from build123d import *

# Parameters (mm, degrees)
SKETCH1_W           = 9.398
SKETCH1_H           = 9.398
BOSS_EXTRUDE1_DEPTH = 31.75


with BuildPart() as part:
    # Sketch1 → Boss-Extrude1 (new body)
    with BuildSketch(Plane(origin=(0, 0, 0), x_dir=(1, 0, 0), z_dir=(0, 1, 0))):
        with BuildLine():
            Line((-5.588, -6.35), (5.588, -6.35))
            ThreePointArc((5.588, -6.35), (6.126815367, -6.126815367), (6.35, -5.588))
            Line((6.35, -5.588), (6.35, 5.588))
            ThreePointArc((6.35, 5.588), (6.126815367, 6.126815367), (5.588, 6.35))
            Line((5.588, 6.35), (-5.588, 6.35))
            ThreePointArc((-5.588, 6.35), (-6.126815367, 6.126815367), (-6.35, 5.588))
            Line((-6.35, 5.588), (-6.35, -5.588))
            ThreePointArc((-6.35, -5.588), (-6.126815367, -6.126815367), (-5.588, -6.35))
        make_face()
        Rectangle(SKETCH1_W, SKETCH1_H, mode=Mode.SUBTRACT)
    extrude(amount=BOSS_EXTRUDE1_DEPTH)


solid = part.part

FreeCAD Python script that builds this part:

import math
import FreeCAD as App
import Part
import Sketcher
Q = App.Units.Quantity

doc = App.newDocument("Part")
body = doc.addObject("PartDesign::Body", "Body")

# Sketch on XZ plane
sketch1 = body.newObject("Sketcher::SketchObject", "Sketch")
sketch1.AttachmentSupport = (doc.getObject("XZ_Plane"), [""])
sketch1.MapMode = "FlatFace"
sketch1.addGeometry([
    Part.LineSegment(App.Vector(-5.6, 6.3, 0), App.Vector(5.6, 6.3, 0)),  # 0
    Part.ArcOfCircle(Part.Circle(App.Vector(5.6, 5.6, 0), App.Vector(0, 0, 1), 0.8), math.radians(0), math.radians(90)),  # 1
    Part.LineSegment(App.Vector(6.3, 5.6, 0), App.Vector(6.3, -5.6, 0)),  # 2
    Part.ArcOfCircle(Part.Circle(App.Vector(5.6, -5.6, 0), App.Vector(0, 0, 1), 0.8), math.radians(-90), math.radians(0)),  # 3
    Part.LineSegment(App.Vector(5.6, -6.3, 0), App.Vector(-5.6, -6.3, 0)),  # 4
    Part.ArcOfCircle(Part.Circle(App.Vector(-5.6, -5.6, 0), App.Vector(0, 0, 1), 0.8), math.radians(-180), math.radians(-90)),  # 5
    Part.LineSegment(App.Vector(-6.3, -5.6, 0), App.Vector(-6.3, 5.6, 0)),  # 6
    Part.ArcOfCircle(Part.Circle(App.Vector(-5.6, 5.6, 0), App.Vector(0, 0, 1), 0.8), math.radians(90), math.radians(180)),  # 7
    Part.LineSegment(App.Vector(4.7, 4.7, 0), App.Vector(-4.7, 4.7, 0)),  # 8
    Part.LineSegment(App.Vector(-4.7, 4.7, 0), App.Vector(-4.7, -4.7, 0)),  # 9
    Part.LineSegment(App.Vector(-4.7, -4.7, 0), App.Vector(4.7, -4.7, 0)),  # 10
    Part.LineSegment(App.Vector(4.7, -4.7, 0), App.Vector(4.7, 4.7, 0)),  # 11
], False)
sketch1.addConstraint([
    Sketcher.Constraint("Tangent", 0, 2, 1, 2),
    Sketcher.Constraint("Tangent", 1, 1, 2, 1),
    Sketcher.Constraint("Tangent", 2, 2, 3, 2),
    Sketcher.Constraint("Tangent", 3, 1, 4, 1),
    Sketcher.Constraint("Tangent", 4, 2, 5, 2),
    Sketcher.Constraint("Tangent", 5, 1, 6, 1),
    Sketcher.Constraint("Tangent", 6, 2, 7, 2),
    Sketcher.Constraint("Tangent", 7, 1, 0, 1),
    Sketcher.Constraint("Coincident", 8, 2, 9, 1),
    Sketcher.Constraint("Coincident", 9, 2, 10, 1),
    Sketcher.Constraint("Coincident", 10, 2, 11, 1),
    Sketcher.Constraint("Coincident", 11, 2, 8, 1),
    Sketcher.Constraint("Horizontal", 0),
    Sketcher.Constraint("Vertical", 2),
    Sketcher.Constraint("Horizontal", 4),
    Sketcher.Constraint("Vertical", 6),
    Sketcher.Constraint("Horizontal", 8),
    Sketcher.Constraint("Vertical", 9),
    Sketcher.Constraint("Horizontal", 10),
    Sketcher.Constraint("Vertical", 11),
    Sketcher.Constraint("Equal", 1, 3),
    Sketcher.Constraint("Equal", 3, 5),
    Sketcher.Constraint("Equal", 5, 7),
    Sketcher.Constraint("Symmetric", 1, 3, 5, 3, -1, 1),
    Sketcher.Constraint("Symmetric", 8, 2, 10, 2, -1, 1),
    Sketcher.Constraint("Equal", 4, 2),
    Sketcher.Constraint("Equal", 10, 9),
    Sketcher.Constraint("Radius", 1, Q("0.03 in")),
    Sketcher.Constraint("DistanceX", 0, 1, 0, 2, Q("0.44 in")),
    Sketcher.Constraint("DistanceX", 8, 2, 8, 1, Q("0.37 in")),
])
pad1 = body.newObject("PartDesign::Pad", "Pad")
pad1.Profile = sketch1
pad1.Length = Q("1.25 in")
pad1.Reversed = True

doc.recompute()
